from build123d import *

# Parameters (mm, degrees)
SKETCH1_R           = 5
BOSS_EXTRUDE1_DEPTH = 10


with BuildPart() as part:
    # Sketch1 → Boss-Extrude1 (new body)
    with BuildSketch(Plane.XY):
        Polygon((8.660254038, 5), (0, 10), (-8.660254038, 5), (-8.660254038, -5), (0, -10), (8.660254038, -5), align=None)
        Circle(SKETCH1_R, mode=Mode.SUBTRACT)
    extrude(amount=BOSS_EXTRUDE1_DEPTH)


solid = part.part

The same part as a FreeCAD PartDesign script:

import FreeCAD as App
import Part
import Sketcher
Q = App.Units.Quantity

doc = App.newDocument("Part")
params = doc.addObject("Spreadsheet::Sheet", "Params")
for row, (alias, value) in enumerate([
    ("sketch1_diameter", "10 mm"),
    ("sketch1_height", "10 mm"),
    ("sketch1_length", "10 mm"),
    ("pad1_length", "10 mm"),
], start=1):
    params.set(f"A{row}", alias)
    params.set(f"B{row}", "=" + value)
    params.setAlias(f"B{row}", alias)

body = doc.addObject("PartDesign::Body", "Body")

sketch1 = doc.addObject("Sketcher::SketchObject", "Sketch")
body.addObject(sketch1)
sketch1.AttachmentSupport = (doc.XY_Plane, [""])
sketch1.MapMode = "FlatFace"
sketch1.addGeometry(Part.LineSegment(App.Vector(8.660254, 5, 0), App.Vector(0, 10, 0)), False)
sketch1.addGeometry(Part.LineSegment(App.Vector(0, 10, 0), App.Vector(-8.660254, 5, 0)), False)
sketch1.addGeometry(Part.LineSegment(App.Vector(-8.660254, 5, 0), App.Vector(-8.660254, -5, 0)), False)
sketch1.addGeometry(Part.LineSegment(App.Vector(-8.660254, -5, 0), App.Vector(0, -10, 0)), False)
sketch1.addGeometry(Part.LineSegment(App.Vector(0, -10, 0), App.Vector(8.660254, -5, 0)), False)
sketch1.addGeometry(Part.LineSegment(App.Vector(8.660254, -5, 0), App.Vector(8.660254, 5, 0)), False)
sketch1.addGeometry(Part.Circle(App.Vector(0, 0, 0), App.Vector(0, 0, 1), 5), False)
sketch1.addConstraint(Sketcher.Constraint("Coincident", 0, 2, 1, 1))
sketch1.addConstraint(Sketcher.Constraint("Coincident", 1, 2, 2, 1))
sketch1.addConstraint(Sketcher.Constraint("Coincident", 2, 2, 3, 1))
sketch1.addConstraint(Sketcher.Constraint("Coincident", 3, 2, 4, 1))
sketch1.addConstraint(Sketcher.Constraint("Coincident", 4, 2, 5, 1))
sketch1.addConstraint(Sketcher.Constraint("Coincident", 5, 2, 0, 1))
sketch1.addConstraint(Sketcher.Constraint("Vertical", 2))
sketch1.addConstraint(Sketcher.Constraint("Vertical", 5))
sketch1.addConstraint(Sketcher.Constraint("Coincident", 6, 3, -1, 1))
sketch1.addConstraint(Sketcher.Constraint("Symmetric", 0, 2, 3, 2, -1, 1))
sketch1.addConstraint(Sketcher.Constraint("Symmetric", 1, 2, 4, 2, -1, 1))
sketch1.addConstraint(Sketcher.Constraint("PointOnObject", 0, 2, -2))
sketch1.addConstraint(Sketcher.Constraint("Parallel", 0, 3))
sketch1.addConstraint(Sketcher.Constraint("Horizontal", 2, 2, 4, 2))
sketch1.addConstraint(Sketcher.Constraint("Diameter", 6, 10.0))
sketch1.addConstraint(Sketcher.Constraint("DistanceY", 2, 2, 2, 1, 10.0))
sketch1.addConstraint(Sketcher.Constraint("Angle", 0, Q("150 deg")))
sketch1.addConstraint(Sketcher.Constraint("Distance", 0, 10.0))
sketch1.setExpression("Constraints[14]", "Params.sketch1_diameter")
sketch1.setExpression("Constraints[15]", "Params.sketch1_height")
sketch1.setExpression("Constraints[17]", "Params.sketch1_length")
pad1 = doc.addObject("PartDesign::Pad", "Pad")
body.addObject(pad1)
pad1.Profile = sketch1
pad1.setExpression("Length", "Params.pad1_length")

doc.recompute()
